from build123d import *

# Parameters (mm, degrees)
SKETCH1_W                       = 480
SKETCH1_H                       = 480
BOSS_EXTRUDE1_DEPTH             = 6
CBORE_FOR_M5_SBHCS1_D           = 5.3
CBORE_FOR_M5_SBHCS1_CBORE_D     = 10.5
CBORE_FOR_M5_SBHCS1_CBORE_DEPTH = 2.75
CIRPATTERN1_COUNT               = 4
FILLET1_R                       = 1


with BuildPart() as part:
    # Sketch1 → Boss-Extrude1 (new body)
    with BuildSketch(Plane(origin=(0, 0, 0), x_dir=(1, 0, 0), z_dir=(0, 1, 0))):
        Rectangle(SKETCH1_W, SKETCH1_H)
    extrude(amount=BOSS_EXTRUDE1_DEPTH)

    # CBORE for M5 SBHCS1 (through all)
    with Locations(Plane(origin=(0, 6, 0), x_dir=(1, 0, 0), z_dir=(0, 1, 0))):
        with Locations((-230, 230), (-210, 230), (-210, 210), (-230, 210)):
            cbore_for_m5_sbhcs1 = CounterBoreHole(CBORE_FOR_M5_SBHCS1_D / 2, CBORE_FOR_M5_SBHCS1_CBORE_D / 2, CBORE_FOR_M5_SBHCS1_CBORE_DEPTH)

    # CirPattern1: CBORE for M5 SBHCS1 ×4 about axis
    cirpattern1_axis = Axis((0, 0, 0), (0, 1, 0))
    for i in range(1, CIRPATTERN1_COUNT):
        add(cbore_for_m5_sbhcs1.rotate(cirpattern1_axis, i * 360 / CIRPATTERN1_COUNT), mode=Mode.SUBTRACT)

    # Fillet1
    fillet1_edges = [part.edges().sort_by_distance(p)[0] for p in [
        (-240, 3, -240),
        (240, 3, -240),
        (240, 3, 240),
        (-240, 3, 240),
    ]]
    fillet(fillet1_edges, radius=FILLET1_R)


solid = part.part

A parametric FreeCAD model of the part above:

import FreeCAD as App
import Part
import Sketcher
from FreeCAD import Vector


def edges_at(feature, points):
    """Names of the edges that pass closest to the given points."""
    edges = feature.Shape.Edges
    near = lambda p: min(range(len(edges)), key=lambda i: edges[i].distToShape(Part.Vertex(*p))[0])
    return sorted({f"Edge{near(p) + 1}" for p in points})

doc = App.newDocument("Part")
body = doc.addObject("PartDesign::Body", "Body")

# Sketch on XZ plane
sketch1 = doc.addObject("Sketcher::SketchObject", "Sketch")
body.addObject(sketch1)
sketch1.AttachmentSupport = (doc.XZ_Plane, [""])
sketch1.MapMode = "FlatFace"
sketch1.addGeometry([
    Part.LineSegment(Vector(-240, -240, 0), Vector(-240, 240, 0)),
    Part.LineSegment(Vector(-240, 240, 0), Vector(240, 240, 0)),
    Part.LineSegment(Vector(240, 240, 0), Vector(240, -240, 0)),
    Part.LineSegment(Vector(240, -240, 0), Vector(-240, -240, 0)),
], False)
sketch1.addConstraint([
    Sketcher.Constraint("Coincident", 0, 2, 1, 1),
    Sketcher.Constraint("Coincident", 1, 2, 2, 1),
    Sketcher.Constraint("Coincident", 2, 2, 3, 1),
    Sketcher.Constraint("Coincident", 3, 2, 0, 1),
    Sketcher.Constraint("Vertical", 0),
    Sketcher.Constraint("Horizontal", 1),
    Sketcher.Constraint("Vertical", 2),
    Sketcher.Constraint("Horizontal", 3),
    Sketcher.Constraint("Symmetric", 0, 2, 2, 2, -1, 1),
    Sketcher.Constraint("Equal", 3, 0),
    Sketcher.Constraint("DistanceX", 1, 1, 1, 2, 480.0),
])
pad1 = doc.addObject("PartDesign::Pad", "Pad")
body.addObject(pad1)
pad1.Profile = sketch1
pad1.Length = 6
pad1.Reversed = True

# Sketch on XZ plane
sketch2 = doc.addObject("Sketcher::SketchObject", "Sketch001")
body.addObject(sketch2)
sketch2.AttachmentSupport = (doc.XZ_Plane, [""])
sketch2.MapMode = "FlatFace"
sketch2.AttachmentOffset = App.Placement(Vector(0, 0, -6), App.Rotation())
sketch2.addGeometry([
    Part.Circle(Vector(-230, -230, 0), Vector(0, 0, 1), 2.6),
    Part.Circle(Vector(-210, -230, 0), Vector(0, 0, 1), 2.6),
    Part.Circle(Vector(-210, -210, 0), Vector(0, 0, 1), 2.6),
    Part.Circle(Vector(-230, -210, 0), Vector(0, 0, 1), 2.6),
], False)
sketch2.addConstraint([
    Sketcher.Constraint("Equal", 0, 1),
    Sketcher.Constraint("Equal", 1, 2),
    Sketcher.Constraint("Equal", 2, 3),
    Sketcher.Constraint("Horizontal", 0, 3, 1, 3),
    Sketcher.Constraint("Horizontal", 2, 3, 3, 3),
    Sketcher.Constraint("Vertical", 1, 3, 2, 3),
    Sketcher.Constraint("Vertical", 0, 3, 3, 3),
    Sketcher.Constraint("Diameter", 0, 5.3),
    Sketcher.Constraint("DistanceX", 0, 3, -1, 1, 230.0),
    Sketcher.Constraint("DistanceY", 0, 3, -1, 1, 230.0),
    Sketcher.Constraint("DistanceX", 1, 3, -1, 1, 210.0),
    Sketcher.Constraint("DistanceY", 2, 3, -1, 1, 210.0),
])
doc.recompute()
hole = doc.addObject("PartDesign::Hole", "Hole")
body.addObject(hole)
hole.Profile = sketch2
hole.ThreadType = "None"
hole.Diameter = 5.3
hole.DepthType = "ThroughAll"
hole.HoleCutType = "Counterbore"
hole.HoleCutDiameter = 10.5
hole.HoleCutDepth = 2.75
hole.Reversed = True
doc.recompute()

polarpattern = doc.addObject("PartDesign::PolarPattern", "PolarPattern")
body.addObject(polarpattern)
polarpattern.Originals = [hole]
polarpattern.Axis = (doc.Y_Axis, [""])
polarpattern.Angle = 360
polarpattern.Occurrences = 4
body.Tip = polarpattern
doc.recompute()

fillet = doc.addObject("PartDesign::Fillet", "Fillet")
body.addObject(fillet)
fillet.Base = (polarpattern, edges_at(polarpattern, [
    (-240, 3, -240),
    (240, 3, -240),
    (240, 3, 240),
    (-240, 3, 240),
]))
fillet.Radius = 1

doc.recompute()
